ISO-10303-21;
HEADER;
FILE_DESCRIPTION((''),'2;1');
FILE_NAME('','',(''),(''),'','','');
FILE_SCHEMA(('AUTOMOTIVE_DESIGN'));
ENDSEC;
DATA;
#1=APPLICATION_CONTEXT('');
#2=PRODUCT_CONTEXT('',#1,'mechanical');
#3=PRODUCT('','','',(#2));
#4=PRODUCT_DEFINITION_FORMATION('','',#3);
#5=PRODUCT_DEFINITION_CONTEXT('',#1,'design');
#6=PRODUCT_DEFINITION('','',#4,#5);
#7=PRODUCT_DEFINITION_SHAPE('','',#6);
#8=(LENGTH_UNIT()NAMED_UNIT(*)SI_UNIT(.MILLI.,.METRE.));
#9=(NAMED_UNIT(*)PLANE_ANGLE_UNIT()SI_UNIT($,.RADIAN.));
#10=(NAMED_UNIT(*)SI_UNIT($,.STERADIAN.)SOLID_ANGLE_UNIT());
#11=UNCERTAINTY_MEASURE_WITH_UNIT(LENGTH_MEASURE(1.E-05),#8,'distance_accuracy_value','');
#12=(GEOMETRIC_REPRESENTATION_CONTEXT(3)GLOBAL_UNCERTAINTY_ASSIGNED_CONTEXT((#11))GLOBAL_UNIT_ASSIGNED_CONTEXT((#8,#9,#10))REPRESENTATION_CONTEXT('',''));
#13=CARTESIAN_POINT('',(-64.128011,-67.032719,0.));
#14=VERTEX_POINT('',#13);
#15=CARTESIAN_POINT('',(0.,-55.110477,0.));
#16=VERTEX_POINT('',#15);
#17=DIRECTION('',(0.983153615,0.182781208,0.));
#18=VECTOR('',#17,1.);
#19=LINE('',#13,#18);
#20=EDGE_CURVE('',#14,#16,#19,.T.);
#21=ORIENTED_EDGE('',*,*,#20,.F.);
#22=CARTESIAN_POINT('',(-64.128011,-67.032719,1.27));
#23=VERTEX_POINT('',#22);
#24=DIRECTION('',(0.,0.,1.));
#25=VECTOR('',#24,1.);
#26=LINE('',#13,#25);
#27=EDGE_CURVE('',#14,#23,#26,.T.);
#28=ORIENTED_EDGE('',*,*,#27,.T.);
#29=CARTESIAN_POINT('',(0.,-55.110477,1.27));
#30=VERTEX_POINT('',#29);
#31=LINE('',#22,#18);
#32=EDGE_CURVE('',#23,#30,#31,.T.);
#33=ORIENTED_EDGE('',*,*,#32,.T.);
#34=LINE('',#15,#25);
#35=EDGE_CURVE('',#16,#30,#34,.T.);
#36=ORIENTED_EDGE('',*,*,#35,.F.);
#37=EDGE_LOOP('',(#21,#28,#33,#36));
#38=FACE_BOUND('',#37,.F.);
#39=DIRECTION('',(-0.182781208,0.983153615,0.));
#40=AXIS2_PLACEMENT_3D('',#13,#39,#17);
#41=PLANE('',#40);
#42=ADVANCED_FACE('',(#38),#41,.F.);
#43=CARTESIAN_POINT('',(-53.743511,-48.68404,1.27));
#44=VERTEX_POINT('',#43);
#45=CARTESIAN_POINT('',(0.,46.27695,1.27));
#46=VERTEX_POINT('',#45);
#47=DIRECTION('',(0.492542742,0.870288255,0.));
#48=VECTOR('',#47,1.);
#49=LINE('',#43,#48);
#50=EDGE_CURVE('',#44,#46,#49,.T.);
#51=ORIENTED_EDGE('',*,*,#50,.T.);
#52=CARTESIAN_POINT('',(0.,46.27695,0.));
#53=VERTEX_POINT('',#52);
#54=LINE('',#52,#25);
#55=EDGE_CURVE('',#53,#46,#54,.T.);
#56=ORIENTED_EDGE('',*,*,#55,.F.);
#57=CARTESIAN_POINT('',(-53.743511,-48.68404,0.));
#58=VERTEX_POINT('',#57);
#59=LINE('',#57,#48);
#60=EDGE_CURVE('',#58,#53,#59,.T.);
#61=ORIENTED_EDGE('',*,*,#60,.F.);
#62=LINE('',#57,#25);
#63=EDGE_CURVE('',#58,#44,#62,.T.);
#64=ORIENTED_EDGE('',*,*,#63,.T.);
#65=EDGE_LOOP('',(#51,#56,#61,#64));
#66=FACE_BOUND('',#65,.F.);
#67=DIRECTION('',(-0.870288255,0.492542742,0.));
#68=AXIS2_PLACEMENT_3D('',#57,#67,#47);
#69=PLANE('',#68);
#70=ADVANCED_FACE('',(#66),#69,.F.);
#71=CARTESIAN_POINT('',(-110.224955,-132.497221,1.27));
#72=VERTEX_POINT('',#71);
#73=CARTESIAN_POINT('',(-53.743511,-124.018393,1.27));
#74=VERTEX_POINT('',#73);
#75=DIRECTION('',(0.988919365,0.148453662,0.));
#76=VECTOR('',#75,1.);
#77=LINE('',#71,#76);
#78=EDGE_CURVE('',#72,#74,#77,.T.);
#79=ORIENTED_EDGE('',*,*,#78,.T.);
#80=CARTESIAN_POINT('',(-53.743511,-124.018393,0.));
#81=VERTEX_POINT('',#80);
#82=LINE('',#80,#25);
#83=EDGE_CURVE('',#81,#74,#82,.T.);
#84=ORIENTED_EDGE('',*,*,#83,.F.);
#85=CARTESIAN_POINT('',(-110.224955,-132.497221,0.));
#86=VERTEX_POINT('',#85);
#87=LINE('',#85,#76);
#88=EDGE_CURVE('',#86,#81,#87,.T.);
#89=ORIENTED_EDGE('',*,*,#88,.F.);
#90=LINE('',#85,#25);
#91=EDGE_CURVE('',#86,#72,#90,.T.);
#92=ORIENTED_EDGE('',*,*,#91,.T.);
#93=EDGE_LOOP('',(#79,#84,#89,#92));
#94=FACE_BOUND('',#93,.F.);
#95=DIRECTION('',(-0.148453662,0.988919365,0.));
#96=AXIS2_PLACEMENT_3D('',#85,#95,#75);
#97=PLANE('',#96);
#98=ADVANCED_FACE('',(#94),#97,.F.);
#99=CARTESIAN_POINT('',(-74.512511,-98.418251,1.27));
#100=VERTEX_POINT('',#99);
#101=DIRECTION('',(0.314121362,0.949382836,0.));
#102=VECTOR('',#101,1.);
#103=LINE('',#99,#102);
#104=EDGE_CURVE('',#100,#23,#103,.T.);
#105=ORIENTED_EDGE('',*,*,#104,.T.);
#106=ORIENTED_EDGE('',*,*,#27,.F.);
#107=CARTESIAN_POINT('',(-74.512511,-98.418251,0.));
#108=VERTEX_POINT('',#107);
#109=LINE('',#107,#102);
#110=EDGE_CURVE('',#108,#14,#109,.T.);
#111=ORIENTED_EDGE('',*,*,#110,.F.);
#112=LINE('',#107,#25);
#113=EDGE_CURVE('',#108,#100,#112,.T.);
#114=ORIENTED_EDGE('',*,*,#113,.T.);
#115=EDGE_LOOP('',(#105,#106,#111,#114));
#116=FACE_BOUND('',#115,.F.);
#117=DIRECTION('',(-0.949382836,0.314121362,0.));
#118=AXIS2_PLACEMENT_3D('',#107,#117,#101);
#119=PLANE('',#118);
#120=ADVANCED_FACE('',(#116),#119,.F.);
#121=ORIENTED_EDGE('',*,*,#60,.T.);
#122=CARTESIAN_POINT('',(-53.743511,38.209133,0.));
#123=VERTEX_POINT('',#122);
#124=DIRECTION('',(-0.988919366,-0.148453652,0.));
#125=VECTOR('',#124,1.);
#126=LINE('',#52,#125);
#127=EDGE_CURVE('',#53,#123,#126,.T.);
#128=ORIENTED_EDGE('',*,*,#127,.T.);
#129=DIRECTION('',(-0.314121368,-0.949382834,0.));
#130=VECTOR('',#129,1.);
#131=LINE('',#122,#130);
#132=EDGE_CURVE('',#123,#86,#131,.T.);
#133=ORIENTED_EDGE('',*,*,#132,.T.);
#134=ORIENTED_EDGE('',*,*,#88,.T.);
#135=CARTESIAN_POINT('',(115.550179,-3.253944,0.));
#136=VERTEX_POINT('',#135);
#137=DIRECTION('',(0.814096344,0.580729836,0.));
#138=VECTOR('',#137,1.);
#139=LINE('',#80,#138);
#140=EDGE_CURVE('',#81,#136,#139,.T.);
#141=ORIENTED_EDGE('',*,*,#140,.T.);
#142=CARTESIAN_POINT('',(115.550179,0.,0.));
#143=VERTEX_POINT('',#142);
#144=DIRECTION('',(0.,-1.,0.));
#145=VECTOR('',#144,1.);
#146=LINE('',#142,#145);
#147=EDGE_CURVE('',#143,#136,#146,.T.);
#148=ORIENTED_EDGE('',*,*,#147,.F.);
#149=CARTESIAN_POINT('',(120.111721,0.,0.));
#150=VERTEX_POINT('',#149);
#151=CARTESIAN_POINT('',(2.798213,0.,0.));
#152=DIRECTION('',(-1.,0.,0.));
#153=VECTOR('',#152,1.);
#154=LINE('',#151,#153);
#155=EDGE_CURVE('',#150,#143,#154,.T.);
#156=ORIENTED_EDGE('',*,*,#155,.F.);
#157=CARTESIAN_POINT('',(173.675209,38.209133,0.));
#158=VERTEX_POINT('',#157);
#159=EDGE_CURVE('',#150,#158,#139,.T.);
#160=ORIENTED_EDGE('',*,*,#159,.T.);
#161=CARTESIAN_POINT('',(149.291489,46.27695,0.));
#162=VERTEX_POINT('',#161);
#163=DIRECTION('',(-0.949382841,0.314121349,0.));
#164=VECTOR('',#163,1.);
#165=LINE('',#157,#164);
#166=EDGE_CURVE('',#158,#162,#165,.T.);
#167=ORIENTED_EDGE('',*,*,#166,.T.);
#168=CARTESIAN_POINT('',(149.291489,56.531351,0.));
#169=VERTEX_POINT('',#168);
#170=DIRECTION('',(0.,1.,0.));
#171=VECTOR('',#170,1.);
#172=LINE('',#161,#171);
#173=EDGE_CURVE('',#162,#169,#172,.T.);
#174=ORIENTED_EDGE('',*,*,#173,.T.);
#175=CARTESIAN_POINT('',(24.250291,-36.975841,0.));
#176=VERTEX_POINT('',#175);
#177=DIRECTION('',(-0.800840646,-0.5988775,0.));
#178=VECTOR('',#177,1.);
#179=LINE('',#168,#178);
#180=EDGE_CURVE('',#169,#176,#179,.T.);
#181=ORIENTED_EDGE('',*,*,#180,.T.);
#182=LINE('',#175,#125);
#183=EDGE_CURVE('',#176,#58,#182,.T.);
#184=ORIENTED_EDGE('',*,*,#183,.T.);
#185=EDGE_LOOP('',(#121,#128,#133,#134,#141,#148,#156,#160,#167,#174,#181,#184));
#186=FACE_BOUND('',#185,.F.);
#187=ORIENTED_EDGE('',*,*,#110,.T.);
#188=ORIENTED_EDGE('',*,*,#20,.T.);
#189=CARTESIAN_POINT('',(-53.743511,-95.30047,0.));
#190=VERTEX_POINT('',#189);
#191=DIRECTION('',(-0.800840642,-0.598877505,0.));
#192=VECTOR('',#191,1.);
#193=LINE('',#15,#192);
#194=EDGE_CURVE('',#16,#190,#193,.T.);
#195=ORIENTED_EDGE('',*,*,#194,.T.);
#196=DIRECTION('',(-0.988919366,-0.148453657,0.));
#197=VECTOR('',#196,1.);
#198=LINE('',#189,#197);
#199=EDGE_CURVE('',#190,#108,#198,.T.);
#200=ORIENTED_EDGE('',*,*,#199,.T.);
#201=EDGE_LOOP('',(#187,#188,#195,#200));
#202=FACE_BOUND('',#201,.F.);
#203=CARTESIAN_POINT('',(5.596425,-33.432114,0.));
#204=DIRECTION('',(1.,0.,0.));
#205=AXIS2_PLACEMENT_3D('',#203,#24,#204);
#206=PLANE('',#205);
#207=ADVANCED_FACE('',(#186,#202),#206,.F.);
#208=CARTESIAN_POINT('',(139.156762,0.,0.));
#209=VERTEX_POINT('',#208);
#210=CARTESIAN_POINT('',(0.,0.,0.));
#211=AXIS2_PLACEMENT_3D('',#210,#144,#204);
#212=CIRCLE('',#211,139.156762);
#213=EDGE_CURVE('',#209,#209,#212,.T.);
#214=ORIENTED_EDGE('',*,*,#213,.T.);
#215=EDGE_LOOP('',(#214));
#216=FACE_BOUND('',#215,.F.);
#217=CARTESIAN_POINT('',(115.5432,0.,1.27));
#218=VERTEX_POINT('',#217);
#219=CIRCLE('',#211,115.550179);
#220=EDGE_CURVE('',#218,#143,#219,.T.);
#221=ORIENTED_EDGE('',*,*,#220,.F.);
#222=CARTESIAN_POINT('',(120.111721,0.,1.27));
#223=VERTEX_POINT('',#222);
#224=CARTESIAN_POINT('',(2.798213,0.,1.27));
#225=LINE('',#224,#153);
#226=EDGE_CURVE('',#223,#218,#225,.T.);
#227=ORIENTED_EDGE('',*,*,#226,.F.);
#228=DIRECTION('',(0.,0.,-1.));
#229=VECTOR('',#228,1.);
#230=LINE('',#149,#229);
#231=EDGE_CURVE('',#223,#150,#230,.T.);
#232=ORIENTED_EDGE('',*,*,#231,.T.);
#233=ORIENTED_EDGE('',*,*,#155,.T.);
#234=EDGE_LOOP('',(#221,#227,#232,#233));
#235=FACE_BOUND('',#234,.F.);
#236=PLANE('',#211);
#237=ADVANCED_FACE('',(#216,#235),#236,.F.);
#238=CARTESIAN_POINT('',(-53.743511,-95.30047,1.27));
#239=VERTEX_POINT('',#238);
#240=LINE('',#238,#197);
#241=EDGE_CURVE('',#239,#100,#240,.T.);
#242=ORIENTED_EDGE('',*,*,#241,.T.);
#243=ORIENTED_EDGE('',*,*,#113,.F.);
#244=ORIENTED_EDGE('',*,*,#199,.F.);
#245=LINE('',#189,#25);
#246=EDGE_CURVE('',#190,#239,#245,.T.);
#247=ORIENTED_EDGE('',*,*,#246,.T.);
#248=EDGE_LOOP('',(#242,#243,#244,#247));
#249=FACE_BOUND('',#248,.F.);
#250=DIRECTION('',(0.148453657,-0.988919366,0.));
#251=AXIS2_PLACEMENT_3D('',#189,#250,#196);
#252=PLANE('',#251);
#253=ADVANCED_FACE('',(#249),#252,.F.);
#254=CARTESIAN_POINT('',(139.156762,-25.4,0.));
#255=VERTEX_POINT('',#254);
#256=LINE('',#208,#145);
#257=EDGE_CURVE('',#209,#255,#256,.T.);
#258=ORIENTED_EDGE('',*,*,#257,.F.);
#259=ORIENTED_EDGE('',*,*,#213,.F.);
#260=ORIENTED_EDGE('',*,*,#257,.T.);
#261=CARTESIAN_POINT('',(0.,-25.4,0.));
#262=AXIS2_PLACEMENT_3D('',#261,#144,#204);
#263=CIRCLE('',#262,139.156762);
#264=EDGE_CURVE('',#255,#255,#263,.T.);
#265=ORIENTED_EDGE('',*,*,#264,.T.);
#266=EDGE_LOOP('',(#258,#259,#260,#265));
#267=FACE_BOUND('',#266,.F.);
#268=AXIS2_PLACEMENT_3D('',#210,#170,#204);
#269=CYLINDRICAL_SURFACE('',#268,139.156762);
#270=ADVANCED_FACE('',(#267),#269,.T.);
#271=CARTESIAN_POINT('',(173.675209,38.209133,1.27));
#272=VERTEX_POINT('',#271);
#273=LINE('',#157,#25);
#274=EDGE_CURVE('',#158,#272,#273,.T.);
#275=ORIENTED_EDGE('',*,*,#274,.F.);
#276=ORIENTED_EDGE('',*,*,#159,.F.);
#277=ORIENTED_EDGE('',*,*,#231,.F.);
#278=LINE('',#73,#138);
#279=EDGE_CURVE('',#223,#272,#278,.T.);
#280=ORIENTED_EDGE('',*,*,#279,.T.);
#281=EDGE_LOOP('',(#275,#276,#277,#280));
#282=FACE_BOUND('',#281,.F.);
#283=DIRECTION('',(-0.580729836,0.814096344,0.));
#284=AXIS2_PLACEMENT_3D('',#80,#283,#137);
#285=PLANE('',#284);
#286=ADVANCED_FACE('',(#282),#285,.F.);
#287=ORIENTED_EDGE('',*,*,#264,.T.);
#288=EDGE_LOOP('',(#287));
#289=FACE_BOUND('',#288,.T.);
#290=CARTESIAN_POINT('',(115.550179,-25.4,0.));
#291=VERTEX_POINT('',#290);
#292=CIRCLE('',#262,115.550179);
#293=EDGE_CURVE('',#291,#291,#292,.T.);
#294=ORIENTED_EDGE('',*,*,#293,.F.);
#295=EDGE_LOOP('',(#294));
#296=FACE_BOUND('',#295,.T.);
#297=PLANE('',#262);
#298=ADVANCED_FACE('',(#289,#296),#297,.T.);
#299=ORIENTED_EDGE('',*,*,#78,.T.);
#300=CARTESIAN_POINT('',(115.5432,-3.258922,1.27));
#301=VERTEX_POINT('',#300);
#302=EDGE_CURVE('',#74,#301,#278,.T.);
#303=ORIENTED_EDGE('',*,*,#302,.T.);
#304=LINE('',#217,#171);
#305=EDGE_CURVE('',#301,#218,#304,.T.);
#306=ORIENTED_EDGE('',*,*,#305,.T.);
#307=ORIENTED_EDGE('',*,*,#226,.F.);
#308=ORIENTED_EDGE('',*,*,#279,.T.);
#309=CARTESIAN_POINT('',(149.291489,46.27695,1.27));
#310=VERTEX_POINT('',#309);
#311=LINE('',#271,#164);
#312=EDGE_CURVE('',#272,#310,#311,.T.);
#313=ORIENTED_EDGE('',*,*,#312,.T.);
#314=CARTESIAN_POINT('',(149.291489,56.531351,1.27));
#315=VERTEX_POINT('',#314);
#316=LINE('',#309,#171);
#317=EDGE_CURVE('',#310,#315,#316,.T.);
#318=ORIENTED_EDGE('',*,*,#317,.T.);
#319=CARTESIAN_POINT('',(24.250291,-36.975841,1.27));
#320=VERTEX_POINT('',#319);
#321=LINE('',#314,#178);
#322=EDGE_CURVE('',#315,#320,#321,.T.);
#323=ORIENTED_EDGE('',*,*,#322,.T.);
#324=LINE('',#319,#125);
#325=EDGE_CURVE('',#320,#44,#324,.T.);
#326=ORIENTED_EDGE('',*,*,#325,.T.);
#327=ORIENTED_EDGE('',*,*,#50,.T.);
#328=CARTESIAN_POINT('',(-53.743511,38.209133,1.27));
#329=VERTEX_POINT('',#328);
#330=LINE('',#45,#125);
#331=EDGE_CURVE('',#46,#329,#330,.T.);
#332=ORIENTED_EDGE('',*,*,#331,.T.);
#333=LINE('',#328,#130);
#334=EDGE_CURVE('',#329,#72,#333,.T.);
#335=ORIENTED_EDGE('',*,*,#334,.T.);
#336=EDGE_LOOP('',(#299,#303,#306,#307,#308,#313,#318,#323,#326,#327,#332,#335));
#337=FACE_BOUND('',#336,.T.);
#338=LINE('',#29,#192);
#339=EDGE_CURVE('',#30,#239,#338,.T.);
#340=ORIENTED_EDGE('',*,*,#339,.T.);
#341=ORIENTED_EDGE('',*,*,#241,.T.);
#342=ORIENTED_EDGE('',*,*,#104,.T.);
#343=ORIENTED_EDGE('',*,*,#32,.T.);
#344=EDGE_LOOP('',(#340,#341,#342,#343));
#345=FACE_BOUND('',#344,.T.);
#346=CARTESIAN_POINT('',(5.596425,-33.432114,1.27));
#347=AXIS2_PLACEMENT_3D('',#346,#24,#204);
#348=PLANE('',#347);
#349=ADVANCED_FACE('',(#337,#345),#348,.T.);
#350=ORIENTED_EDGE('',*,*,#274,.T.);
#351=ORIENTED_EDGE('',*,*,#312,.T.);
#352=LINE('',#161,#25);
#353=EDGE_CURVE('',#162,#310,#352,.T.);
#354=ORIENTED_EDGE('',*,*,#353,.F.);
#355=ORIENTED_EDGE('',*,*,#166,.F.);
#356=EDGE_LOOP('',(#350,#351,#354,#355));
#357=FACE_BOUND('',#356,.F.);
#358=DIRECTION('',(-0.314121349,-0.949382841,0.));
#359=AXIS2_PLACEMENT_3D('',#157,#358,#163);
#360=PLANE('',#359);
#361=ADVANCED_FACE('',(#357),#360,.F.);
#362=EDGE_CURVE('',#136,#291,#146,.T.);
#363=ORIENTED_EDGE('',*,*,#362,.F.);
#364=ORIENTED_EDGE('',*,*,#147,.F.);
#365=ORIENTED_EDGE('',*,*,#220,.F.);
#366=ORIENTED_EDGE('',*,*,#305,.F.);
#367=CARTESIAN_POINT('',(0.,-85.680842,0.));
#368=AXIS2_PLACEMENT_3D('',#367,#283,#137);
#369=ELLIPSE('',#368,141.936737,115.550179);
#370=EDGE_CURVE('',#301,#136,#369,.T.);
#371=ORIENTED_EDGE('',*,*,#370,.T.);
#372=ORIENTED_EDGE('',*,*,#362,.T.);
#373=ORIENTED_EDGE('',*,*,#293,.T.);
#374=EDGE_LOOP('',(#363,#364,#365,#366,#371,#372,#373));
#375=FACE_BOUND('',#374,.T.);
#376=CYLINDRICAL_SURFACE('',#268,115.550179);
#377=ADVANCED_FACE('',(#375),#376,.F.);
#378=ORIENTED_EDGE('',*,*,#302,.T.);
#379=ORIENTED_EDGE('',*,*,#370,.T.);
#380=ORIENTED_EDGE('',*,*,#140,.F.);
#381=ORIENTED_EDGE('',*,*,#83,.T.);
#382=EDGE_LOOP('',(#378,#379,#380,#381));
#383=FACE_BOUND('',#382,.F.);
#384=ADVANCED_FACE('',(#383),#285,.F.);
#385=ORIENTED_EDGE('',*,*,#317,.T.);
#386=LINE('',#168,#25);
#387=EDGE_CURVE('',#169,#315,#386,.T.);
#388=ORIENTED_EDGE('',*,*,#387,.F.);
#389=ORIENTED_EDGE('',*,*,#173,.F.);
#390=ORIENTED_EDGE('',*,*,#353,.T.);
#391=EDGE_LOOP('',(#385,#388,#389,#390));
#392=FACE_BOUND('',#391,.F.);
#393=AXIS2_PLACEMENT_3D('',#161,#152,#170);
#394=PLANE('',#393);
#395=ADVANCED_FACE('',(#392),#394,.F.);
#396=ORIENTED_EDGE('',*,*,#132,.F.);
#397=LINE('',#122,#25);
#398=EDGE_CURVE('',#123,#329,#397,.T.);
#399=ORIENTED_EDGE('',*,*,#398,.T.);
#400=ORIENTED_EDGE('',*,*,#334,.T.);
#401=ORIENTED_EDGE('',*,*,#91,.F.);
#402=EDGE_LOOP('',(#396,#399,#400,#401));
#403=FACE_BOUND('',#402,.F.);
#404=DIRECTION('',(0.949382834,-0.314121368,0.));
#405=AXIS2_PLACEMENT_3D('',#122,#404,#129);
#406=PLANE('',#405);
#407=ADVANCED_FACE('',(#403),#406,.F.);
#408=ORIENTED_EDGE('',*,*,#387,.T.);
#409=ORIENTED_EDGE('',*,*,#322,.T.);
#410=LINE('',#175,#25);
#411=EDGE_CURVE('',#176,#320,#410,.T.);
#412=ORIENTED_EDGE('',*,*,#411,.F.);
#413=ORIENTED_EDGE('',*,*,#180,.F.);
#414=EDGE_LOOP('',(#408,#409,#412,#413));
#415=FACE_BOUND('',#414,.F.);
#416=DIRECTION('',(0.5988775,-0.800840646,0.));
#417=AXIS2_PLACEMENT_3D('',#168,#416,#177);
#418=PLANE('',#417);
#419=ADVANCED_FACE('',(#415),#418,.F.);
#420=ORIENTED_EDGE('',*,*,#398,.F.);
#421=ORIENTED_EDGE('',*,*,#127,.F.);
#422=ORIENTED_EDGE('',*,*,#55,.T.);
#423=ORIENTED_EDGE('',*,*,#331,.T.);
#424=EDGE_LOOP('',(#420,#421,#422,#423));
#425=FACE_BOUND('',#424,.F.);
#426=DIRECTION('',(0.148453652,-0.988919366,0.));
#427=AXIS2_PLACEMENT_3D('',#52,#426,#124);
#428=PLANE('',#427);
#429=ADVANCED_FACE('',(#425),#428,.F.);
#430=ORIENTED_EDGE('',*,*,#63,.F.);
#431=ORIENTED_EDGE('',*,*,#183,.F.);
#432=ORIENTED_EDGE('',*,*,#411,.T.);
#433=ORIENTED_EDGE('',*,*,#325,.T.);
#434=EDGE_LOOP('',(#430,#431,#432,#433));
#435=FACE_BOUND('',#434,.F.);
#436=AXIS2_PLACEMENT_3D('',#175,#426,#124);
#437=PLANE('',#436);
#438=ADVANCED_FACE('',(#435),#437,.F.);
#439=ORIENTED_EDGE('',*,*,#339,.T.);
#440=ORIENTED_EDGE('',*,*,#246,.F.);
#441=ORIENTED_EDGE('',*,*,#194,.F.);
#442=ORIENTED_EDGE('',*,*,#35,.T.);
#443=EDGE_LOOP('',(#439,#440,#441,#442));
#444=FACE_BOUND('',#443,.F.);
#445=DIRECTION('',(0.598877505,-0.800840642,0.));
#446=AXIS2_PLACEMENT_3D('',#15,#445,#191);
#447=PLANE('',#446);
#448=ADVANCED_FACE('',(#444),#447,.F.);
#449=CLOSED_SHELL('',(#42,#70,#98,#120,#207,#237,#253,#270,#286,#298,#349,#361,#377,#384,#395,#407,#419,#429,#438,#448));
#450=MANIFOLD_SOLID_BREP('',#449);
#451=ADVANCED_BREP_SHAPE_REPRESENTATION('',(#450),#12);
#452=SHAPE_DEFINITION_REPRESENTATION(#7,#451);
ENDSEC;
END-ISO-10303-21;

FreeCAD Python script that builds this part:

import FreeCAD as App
import Part
import Sketcher

V = App.Vector
Q = App.Units.Quantity

doc = App.newDocument("Part")
body = doc.addObject("PartDesign::Body", "Body")

sketch1 = doc.addObject("Sketcher::SketchObject", "Sketch")
body.addObject(sketch1)
sketch1.AttachmentSupport = (doc.XZ_Plane, [""])
sketch1.MapMode = "FlatFace"
sketch1.addGeometry(Part.Circle(V(0, 0, 0), V(0, 0, 1), 139), False)
sketch1.addGeometry(Part.Circle(V(0, 0, 0), V(0, 0, 1), 116), False)
sketch1.addConstraint(Sketcher.Constraint("Coincident", 0, 3, -1, 1))
sketch1.addConstraint(Sketcher.Constraint("Coincident", 1, 3, -1, 1))
sketch1.addConstraint(Sketcher.Constraint("Diameter", 1, 231.100358))
sketch1.addConstraint(Sketcher.Constraint("Diameter", 0, 278.313524))
pad1 = doc.addObject("PartDesign::Pad", "Pad")
body.addObject(pad1)
pad1.Profile = sketch1
pad1.Length = Q("1 in")

sketch2 = doc.addObject("Sketcher::SketchObject", "Sketch001")
body.addObject(sketch2)
sketch2.AttachmentSupport = (doc.XY_Plane, [""])
sketch2.MapMode = "FlatFace"
sketch2.addGeometry(Part.LineSegment(V(-54, 38, 0), V(-110, -132, 0)), False)
sketch2.addGeometry(Part.LineSegment(V(-110, -132, 0), V(-54, -124, 0)), False)
sketch2.addGeometry(Part.LineSegment(V(-54, -124, 0), V(174, 38, 0)), False)
sketch2.addGeometry(Part.LineSegment(V(174, 38, 0), V(149, 46, 0)), False)
sketch2.addGeometry(Part.LineSegment(V(149, 46, 0), V(149, 57, 0)), False)
sketch2.addGeometry(Part.LineSegment(V(149, 57, 0), V(24, -37, 0)), False)
sketch2.addGeometry(Part.LineSegment(V(24, -37, 0), V(-54, -49, 0)), False)
sketch2.addGeometry(Part.LineSegment(V(-54, -49, 0), V(0, 46, 0)), False)
sketch2.addGeometry(Part.LineSegment(V(0, 46, 0), V(-54, 38, 0)), False)
sketch2.addGeometry(Part.LineSegment(V(0, -55, 0), V(-54, -95, 0)), False)
sketch2.addGeometry(Part.LineSegment(V(-54, -95, 0), V(-75, -98, 0)), False)
sketch2.addGeometry(Part.LineSegment(V(-75, -98, 0), V(-64, -67, 0)), False)
sketch2.addGeometry(Part.LineSegment(V(-64, -67, 0), V(0, -55, 0)), False)
sketch2.addConstraint(Sketcher.Constraint("Coincident", 0, 2, 1, 1))
sketch2.addConstraint(Sketcher.Constraint("Coincident", 1, 2, 2, 1))
sketch2.addConstraint(Sketcher.Constraint("Coincident", 2, 2, 3, 1))
sketch2.addConstraint(Sketcher.Constraint("Coincident", 3, 2, 4, 1))
sketch2.addConstraint(Sketcher.Constraint("Coincident", 4, 2, 5, 1))
sketch2.addConstraint(Sketcher.Constraint("Coincident", 5, 2, 6, 1))
sketch2.addConstraint(Sketcher.Constraint("Coincident", 6, 2, 7, 1))
sketch2.addConstraint(Sketcher.Constraint("Coincident", 7, 2, 8, 1))
sketch2.addConstraint(Sketcher.Constraint("Coincident", 8, 2, 0, 1))
sketch2.addConstraint(Sketcher.Constraint("Coincident", 9, 2, 10, 1))
sketch2.addConstraint(Sketcher.Constraint("Coincident", 10, 2, 11, 1))
sketch2.addConstraint(Sketcher.Constraint("Coincident", 11, 2, 12, 1))
sketch2.addConstraint(Sketcher.Constraint("Coincident", 12, 2, 9, 1))
sketch2.addConstraint(Sketcher.Constraint("Vertical", 4))
sketch2.addConstraint(Sketcher.Constraint("PointOnObject", 7, 2, -2))
sketch2.addConstraint(Sketcher.Constraint("PointOnObject", 12, 2, -2))
sketch2.addConstraint(Sketcher.Constraint("Perpendicular", 0, 3))
sketch2.addConstraint(Sketcher.Constraint("Parallel", 1, 6))
sketch2.addConstraint(Sketcher.Constraint("Parallel", 6, 8))
sketch2.addConstraint(Sketcher.Constraint("Parallel", 5, 9))
sketch2.addConstraint(Sketcher.Constraint("Parallel", 8, 10))
sketch2.addConstraint(Sketcher.Constraint("Perpendicular", 3, 11))
sketch2.addConstraint(Sketcher.Constraint("Horizontal", 3, 2, 7, 2))
sketch2.addConstraint(Sketcher.Constraint("Horizontal", 2, 2, 8, 2))
sketch2.addConstraint(Sketcher.Constraint("Vertical", 1, 2, 6, 2))
sketch2.addConstraint(Sketcher.Constraint("Vertical", 6, 2, 8, 2))
sketch2.addConstraint(Sketcher.Constraint("Vertical", 8, 2, 9, 2))
sketch2.addConstraint(Sketcher.Constraint("DistanceY", 4, 1, 4, 2, 10.254401))
sketch2.addConstraint(Sketcher.Constraint("DistanceX", 1, 2, 3, 2, 203.035))
sketch2.addConstraint(Sketcher.Constraint("DistanceX", 5, 2, 3, 2, 125.041198))
sketch2.addConstraint(Sketcher.Constraint("DistanceY", 6, 2, 5, 2, 11.708199))
sketch2.addConstraint(Sketcher.Constraint("DistanceX", 10, 2, 9, 2, 20.769))
sketch2.addConstraint(Sketcher.Constraint("DistanceX", 11, 2, 6, 2, 10.3845))
sketch2.addConstraint(Sketcher.Constraint("DistanceY", 0, 2, 11, 2, 65.464502))
sketch2.addConstraint(Sketcher.Constraint("Distance", 0, 179.807711))
sketch2.addConstraint(Sketcher.Constraint("Distance", 3, 25.683759))
sketch2.addConstraint(Sketcher.Constraint("Distance", 7, 109.114411))
sketch2.addConstraint(Sketcher.Constraint("Distance", 9, 67.108871))
sketch2.addConstraint(Sketcher.Constraint("DistanceY", 0, 2, -1, 1, 132.497221))
pad2 = doc.addObject("PartDesign::Pad", "Pad001")
body.addObject(pad2)
pad2.Profile = sketch2
pad2.Length = Q("0.05 in")

doc.recompute()
